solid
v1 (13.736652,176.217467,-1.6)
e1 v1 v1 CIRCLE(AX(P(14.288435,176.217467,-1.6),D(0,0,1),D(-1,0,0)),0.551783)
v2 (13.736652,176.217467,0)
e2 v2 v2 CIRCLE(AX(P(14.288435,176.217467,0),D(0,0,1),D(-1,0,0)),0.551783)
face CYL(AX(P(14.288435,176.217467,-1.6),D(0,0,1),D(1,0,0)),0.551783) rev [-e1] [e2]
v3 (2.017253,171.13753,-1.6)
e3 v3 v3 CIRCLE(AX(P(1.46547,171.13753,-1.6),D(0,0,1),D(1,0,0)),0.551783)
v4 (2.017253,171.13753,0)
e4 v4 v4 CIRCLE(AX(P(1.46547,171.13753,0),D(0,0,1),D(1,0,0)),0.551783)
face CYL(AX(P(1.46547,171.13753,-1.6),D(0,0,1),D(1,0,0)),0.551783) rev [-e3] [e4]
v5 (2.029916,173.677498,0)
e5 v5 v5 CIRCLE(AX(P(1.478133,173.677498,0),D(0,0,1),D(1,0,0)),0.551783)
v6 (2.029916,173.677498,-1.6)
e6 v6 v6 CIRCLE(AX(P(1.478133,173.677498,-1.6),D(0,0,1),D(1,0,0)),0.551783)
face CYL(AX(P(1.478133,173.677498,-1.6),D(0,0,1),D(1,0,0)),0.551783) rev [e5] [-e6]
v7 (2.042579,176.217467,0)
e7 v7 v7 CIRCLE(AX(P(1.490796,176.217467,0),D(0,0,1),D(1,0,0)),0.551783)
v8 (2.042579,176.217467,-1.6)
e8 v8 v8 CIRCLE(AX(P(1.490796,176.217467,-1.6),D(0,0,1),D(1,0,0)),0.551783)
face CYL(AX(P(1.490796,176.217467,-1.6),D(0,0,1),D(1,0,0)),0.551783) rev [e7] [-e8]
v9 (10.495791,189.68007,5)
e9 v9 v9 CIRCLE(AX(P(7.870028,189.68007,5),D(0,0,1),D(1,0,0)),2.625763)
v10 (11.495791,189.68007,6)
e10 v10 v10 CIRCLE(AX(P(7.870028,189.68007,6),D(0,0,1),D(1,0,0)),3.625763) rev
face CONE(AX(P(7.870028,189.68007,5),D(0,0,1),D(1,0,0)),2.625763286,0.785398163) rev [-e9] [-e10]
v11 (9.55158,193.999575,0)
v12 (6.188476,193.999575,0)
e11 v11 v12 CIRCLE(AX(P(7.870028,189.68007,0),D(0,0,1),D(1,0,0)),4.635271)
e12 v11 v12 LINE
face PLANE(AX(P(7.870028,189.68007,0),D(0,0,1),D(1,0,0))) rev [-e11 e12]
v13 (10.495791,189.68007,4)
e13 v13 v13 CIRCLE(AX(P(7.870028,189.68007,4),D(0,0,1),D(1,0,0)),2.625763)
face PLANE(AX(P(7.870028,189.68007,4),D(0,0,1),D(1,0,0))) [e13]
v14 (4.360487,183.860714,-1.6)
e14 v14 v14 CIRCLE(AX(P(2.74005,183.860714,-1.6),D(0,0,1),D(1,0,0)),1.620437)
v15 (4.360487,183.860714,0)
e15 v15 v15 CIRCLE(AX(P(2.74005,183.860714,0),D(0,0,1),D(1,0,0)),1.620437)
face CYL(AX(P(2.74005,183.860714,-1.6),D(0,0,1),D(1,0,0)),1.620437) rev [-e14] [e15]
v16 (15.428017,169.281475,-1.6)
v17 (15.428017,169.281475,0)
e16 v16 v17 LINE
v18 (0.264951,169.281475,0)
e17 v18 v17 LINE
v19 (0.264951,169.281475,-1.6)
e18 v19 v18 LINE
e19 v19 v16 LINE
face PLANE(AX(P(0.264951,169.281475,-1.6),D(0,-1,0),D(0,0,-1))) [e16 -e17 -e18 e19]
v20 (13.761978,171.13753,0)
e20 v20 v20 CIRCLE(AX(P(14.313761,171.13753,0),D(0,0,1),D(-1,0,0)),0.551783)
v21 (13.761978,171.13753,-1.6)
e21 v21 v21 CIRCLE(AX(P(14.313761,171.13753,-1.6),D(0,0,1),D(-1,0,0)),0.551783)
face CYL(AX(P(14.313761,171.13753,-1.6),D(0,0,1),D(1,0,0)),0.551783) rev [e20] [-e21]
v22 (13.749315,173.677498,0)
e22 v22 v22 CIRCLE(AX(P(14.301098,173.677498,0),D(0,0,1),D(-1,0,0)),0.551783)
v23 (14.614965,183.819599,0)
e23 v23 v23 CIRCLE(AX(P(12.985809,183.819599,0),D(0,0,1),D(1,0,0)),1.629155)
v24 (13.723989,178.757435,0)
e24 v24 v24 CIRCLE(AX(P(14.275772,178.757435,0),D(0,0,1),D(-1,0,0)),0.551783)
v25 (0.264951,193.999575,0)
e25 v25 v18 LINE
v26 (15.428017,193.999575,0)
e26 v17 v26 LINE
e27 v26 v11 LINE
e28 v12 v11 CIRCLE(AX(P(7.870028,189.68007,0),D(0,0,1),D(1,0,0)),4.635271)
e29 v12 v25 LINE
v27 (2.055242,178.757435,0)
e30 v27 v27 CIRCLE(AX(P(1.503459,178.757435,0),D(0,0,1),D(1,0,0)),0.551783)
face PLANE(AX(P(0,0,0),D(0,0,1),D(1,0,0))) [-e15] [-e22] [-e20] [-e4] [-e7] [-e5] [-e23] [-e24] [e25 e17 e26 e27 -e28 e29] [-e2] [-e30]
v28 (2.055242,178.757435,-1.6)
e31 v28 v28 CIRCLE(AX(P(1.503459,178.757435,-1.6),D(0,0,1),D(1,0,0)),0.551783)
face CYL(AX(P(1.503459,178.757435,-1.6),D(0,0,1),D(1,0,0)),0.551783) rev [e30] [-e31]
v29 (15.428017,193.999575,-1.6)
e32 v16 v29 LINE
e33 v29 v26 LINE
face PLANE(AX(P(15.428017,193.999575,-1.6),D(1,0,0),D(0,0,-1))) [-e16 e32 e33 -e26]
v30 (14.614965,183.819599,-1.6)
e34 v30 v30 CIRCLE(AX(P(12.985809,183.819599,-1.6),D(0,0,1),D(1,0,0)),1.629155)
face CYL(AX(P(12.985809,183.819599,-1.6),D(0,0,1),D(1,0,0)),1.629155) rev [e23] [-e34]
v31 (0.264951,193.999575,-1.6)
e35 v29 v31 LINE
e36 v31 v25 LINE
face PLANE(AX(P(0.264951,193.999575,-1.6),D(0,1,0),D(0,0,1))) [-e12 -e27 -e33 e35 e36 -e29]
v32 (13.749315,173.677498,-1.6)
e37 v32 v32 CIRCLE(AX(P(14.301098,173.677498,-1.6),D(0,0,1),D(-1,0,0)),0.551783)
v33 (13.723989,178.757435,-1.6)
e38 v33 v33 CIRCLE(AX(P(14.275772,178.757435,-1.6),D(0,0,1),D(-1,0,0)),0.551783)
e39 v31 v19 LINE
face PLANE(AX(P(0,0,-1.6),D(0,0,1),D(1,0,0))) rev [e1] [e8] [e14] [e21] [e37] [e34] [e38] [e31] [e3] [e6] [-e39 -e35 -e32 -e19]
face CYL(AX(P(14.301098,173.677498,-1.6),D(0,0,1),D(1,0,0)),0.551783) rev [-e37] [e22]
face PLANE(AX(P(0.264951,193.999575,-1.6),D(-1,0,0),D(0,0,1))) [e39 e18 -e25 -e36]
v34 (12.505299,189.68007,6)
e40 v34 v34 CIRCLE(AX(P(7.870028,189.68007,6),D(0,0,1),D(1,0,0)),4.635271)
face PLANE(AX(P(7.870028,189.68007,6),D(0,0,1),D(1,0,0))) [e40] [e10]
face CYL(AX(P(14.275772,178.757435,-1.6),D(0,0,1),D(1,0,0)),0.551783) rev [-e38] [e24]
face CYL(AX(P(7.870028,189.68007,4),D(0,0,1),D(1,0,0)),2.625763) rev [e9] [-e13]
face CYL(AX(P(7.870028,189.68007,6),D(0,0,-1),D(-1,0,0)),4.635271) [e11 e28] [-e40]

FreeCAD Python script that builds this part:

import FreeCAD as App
import Part
import Sketcher
Q = App.Units.Quantity


def edges_at(feature, points):
    """Names of the edges that pass closest to the given points."""
    edges = feature.Shape.Edges
    near = lambda p: min(range(len(edges)), key=lambda i: edges[i].distToShape(Part.Vertex(*p))[0])
    return sorted({f"Edge{near(p) + 1}" for p in points})

doc = App.newDocument("Part")
body = doc.addObject("PartDesign::Body", "Body")

# Sketch on XY plane
sketch1 = body.newObject("Sketcher::SketchObject", "Sketch")
sketch1.AttachmentSupport = (doc.getObject("XY_Plane"), [""])
sketch1.MapMode = "FlatFace"
sketch1.addGeometry([
    Part.LineSegment(App.Vector(0.264951, 193.999575, 0), App.Vector(0.264951, 169.281475, 0)),  # 0
    Part.LineSegment(App.Vector(0.264951, 169.281475, 0), App.Vector(15.428017, 169.281475, 0)),  # 1
    Part.LineSegment(App.Vector(15.428017, 169.281475, 0), App.Vector(15.428017, 193.999575, 0)),  # 2
    Part.LineSegment(App.Vector(15.428017, 193.999575, 0), App.Vector(0.264951, 193.999575, 0)),  # 3
    Part.Circle(App.Vector(1.46547, 171.13753, 0), App.Vector(0, 0, 1), 0.551783),  # 4
    Part.Circle(App.Vector(1.478133, 173.677498, 0), App.Vector(0, 0, 1), 0.551783),  # 5
    Part.Circle(App.Vector(1.490796, 176.217467, 0), App.Vector(0, 0, 1), 0.551783),  # 6
    Part.Circle(App.Vector(14.313761, 171.13753, 0), App.Vector(0, 0, 1), 0.551783),  # 7
    Part.Circle(App.Vector(14.301098, 173.677498, 0), App.Vector(0, 0, 1), 0.551783),  # 8
    Part.Circle(App.Vector(14.288435, 176.217467, 0), App.Vector(0, 0, 1), 0.551783),  # 9
    Part.Circle(App.Vector(1.503459, 178.757435, 0), App.Vector(0, 0, 1), 0.551783),  # 10
    Part.Circle(App.Vector(2.74005, 183.860714, 0), App.Vector(0, 0, 1), 1.620437),  # 11
    Part.Circle(App.Vector(14.275772, 178.757435, 0), App.Vector(0, 0, 1), 0.551783),  # 12
    Part.Circle(App.Vector(12.985809, 183.819599, 0), App.Vector(0, 0, 1), 1.629155),  # 13
], False)
sketch1.addConstraint([
    Sketcher.Constraint("Coincident", 0, 2, 1, 1),
    Sketcher.Constraint("Coincident", 1, 2, 2, 1),
    Sketcher.Constraint("Coincident", 2, 2, 3, 1),
    Sketcher.Constraint("Coincident", 3, 2, 0, 1),
    Sketcher.Constraint("Vertical", 0),
    Sketcher.Constraint("Horizontal", 1),
    Sketcher.Constraint("Vertical", 2),
    Sketcher.Constraint("Horizontal", 3),
    Sketcher.Constraint("Equal", 4, 5),
    Sketcher.Constraint("Equal", 5, 6),
    Sketcher.Constraint("Equal", 6, 7),
    Sketcher.Constraint("Equal", 7, 8),
    Sketcher.Constraint("Equal", 8, 9),
    Sketcher.Constraint("Equal", 9, 10),
    Sketcher.Constraint("Equal", 10, 12),
    Sketcher.Constraint("Horizontal", 4, 3, 7, 3),
    Sketcher.Constraint("Horizontal", 5, 3, 8, 3),
    Sketcher.Constraint("Horizontal", 6, 3, 9, 3),
    Sketcher.Constraint("Horizontal", 10, 3, 12, 3),
    Sketcher.Constraint("Diameter", 13, Q("3.258311 mm")),
    Sketcher.Constraint("Diameter", 4, Q("1.103566 mm")),
    Sketcher.Constraint("Diameter", 11, Q("3.240874 mm")),
    Sketcher.Constraint("DistanceY", 0, 2, 0, 1, Q("24.7181 mm")),
    Sketcher.Constraint("DistanceY", -1, 1, 5, 3, Q("173.677498 mm")),
    Sketcher.Constraint("DistanceX", -1, 1, 8, 3, Q("14.301098 mm")),
    Sketcher.Constraint("DistanceY", -1, 1, 13, 3, Q("183.819599 mm")),
    Sketcher.Constraint("DistanceX", 3, 2, 11, 3, Q("2.475099 mm")),
    Sketcher.Constraint("DistanceX", 1, 1, 1, 2, Q("15.163066 mm")),
    Sketcher.Constraint("DistanceX", -1, 1, 4, 3, Q("1.46547 mm")),
    Sketcher.Constraint("DistanceY", -1, 1, 4, 3, Q("171.13753 mm")),
    Sketcher.Constraint("DistanceX", -1, 1, 7, 3, Q("14.313761 mm")),
    Sketcher.Constraint("DistanceX", -1, 1, 10, 3, Q("1.503459 mm")),
    Sketcher.Constraint("DistanceX", -1, 1, 11, 3, Q("2.74005 mm")),
    Sketcher.Constraint("DistanceX", -1, 1, 13, 3, Q("12.985809 mm")),
    Sketcher.Constraint("DistanceY", 5, 3, 6, 3, Q("2.539968 mm")),
    Sketcher.Constraint("DistanceX", 5, 3, 7, 3, Q("12.835629 mm")),
    Sketcher.Constraint("DistanceX", 6, 3, 9, 3, Q("12.79764 mm")),
    Sketcher.Constraint("DistanceY", 6, 3, 10, 3, Q("2.539968 mm")),
    Sketcher.Constraint("DistanceY", 10, 3, 11, 3, Q("5.103278 mm")),
    Sketcher.Constraint("DistanceX", 12, 3, 7, 3, Q("0.037989 mm")),
    Sketcher.Constraint("DistanceY", 0, 2, 6, 3, Q("6.935992 mm")),
    Sketcher.Constraint("DistanceX", 9, 3, 1, 2, Q("1.139582 mm")),
])
pad1 = body.newObject("PartDesign::Pad", "Pad")
pad1.Profile = sketch1
pad1.Length = 1.6
pad1.Reversed = True

# Sketch on XY plane
sketch2 = body.newObject("Sketcher::SketchObject", "Sketch001")
sketch2.AttachmentSupport = (doc.getObject("XY_Plane"), [""])
sketch2.MapMode = "FlatFace"
sketch2.addGeometry(Part.Circle(App.Vector(7.870028, 189.68007, 0), App.Vector(0, 0, 1), 4.635271), False)
sketch2.addConstraint([
    Sketcher.Constraint("Diameter", 0, Q("9.270542 mm")),
    Sketcher.Constraint("DistanceY", -1, 1, 0, 3, Q("189.68007 mm")),
    Sketcher.Constraint("DistanceX", -1, 1, 0, 3, Q("7.870028 mm")),
])
pad2 = body.newObject("PartDesign::Pad", "Pad001")
pad2.Profile = sketch2
pad2.Length = 6

# Sketch on XY plane
sketch3 = body.newObject("Sketcher::SketchObject", "Sketch002")
sketch3.AttachmentSupport = (doc.getObject("XY_Plane"), [""])
sketch3.MapMode = "FlatFace"
sketch3.AttachmentOffset = App.Placement(App.Vector(0, 0, 6), App.Rotation())
sketch3.addGeometry(Part.Circle(App.Vector(7.870028, 189.68007, 0), App.Vector(0, 0, 1), 2.625763), False)
sketch3.addConstraint([
    Sketcher.Constraint("Diameter", 0, Q("5.251527 mm")),
    Sketcher.Constraint("DistanceY", -1, 1, 0, 3, Q("189.68007 mm")),
    Sketcher.Constraint("DistanceX", -1, 1, 0, 3, Q("7.870028 mm")),
])
pocket1 = body.newObject("PartDesign::Pocket", "Pocket")
pocket1.Profile = sketch3
pocket1.Length = 2
doc.recompute()

chamfer = body.newObject("PartDesign::Chamfer", "Chamfer")
chamfer.Base = (pocket1, edges_at(pocket1, [(5.244, 189.68, 6)]))
chamfer.Size = 1

doc.recompute()
